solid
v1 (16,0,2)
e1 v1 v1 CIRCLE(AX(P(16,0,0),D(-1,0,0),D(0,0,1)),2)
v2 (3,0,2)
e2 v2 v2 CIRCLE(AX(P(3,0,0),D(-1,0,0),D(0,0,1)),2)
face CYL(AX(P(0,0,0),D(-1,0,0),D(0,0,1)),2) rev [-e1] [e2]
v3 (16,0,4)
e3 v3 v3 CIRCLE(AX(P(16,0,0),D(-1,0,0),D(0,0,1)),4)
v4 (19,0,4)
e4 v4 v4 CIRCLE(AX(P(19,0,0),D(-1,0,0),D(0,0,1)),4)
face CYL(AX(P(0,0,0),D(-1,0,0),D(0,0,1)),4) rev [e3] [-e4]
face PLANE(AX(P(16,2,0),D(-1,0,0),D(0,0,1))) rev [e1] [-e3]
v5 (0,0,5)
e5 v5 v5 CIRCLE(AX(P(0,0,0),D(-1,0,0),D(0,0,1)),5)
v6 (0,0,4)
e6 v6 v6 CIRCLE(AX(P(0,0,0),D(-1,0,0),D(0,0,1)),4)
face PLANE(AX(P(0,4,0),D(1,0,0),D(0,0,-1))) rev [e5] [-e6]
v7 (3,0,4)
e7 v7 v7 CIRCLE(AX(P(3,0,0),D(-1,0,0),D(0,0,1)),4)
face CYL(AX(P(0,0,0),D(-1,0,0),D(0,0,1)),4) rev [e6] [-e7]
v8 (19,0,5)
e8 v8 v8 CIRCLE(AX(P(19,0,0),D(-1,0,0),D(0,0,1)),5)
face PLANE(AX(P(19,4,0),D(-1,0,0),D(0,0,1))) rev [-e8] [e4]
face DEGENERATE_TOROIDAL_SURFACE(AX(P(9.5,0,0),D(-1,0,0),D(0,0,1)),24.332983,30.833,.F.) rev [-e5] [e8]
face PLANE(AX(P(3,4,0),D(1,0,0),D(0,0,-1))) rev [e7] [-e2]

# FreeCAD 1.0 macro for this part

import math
import FreeCAD as App
import Part
import Sketcher
Q = App.Units.Quantity

doc = App.newDocument("Part")
body = doc.addObject("PartDesign::Body", "Body")

sketch1 = doc.addObject("Sketcher::SketchObject", "Sketch")
body.addObject(sketch1)
sketch1.AttachmentSupport = (doc.XY_Plane, [""])
sketch1.MapMode = "FlatFace"
sketch1.addGeometry([
    Part.LineSegment(App.Vector(0, 5, 0), App.Vector(0, 4, 0)),
    Part.LineSegment(App.Vector(0, 4, 0), App.Vector(3, 4, 0)),
    Part.LineSegment(App.Vector(3, 4, 0), App.Vector(3, 2, 0)),
    Part.LineSegment(App.Vector(3, 2, 0), App.Vector(16, 2, 0)),
    Part.LineSegment(App.Vector(16, 2, 0), App.Vector(16, 4, 0)),
    Part.LineSegment(App.Vector(16, 4, 0), App.Vector(19, 4, 0)),
    Part.LineSegment(App.Vector(19, 4, 0), App.Vector(19, 5, 0)),
    Part.ArcOfCircle(Part.Circle(App.Vector(9.5, -24.3, 0), App.Vector(0, 0, 1), 30.8), math.radians(72), math.radians(108)),
], False)
sketch1.addConstraint([
    Sketcher.Constraint("Coincident", 0, 2, 1, 1),
    Sketcher.Constraint("Coincident", 1, 2, 2, 1),
    Sketcher.Constraint("Coincident", 2, 2, 3, 1),
    Sketcher.Constraint("Coincident", 3, 2, 4, 1),
    Sketcher.Constraint("Coincident", 4, 2, 5, 1),
    Sketcher.Constraint("Coincident", 5, 2, 6, 1),
    Sketcher.Constraint("Coincident", 6, 2, 7, 1),
    Sketcher.Constraint("Coincident", 7, 2, 0, 1),
    Sketcher.Constraint("Vertical", 0),
    Sketcher.Constraint("Horizontal", 1),
    Sketcher.Constraint("Vertical", 2),
    Sketcher.Constraint("Horizontal", 3),
    Sketcher.Constraint("Vertical", 4),
    Sketcher.Constraint("Horizontal", 5),
    Sketcher.Constraint("Vertical", 6),
    Sketcher.Constraint("PointOnObject", 0, 2, -2),
    Sketcher.Constraint("Horizontal", 1, 2, 4, 2),
    Sketcher.Constraint("Horizontal", 6, 2, 7, 2),
    Sketcher.Constraint("Equal", 1, 5),
    Sketcher.Constraint("DistanceX", 1, 1, 1, 2, Q("3 mm")),
    Sketcher.Constraint("DistanceX", 3, 1, 3, 2, Q("13 mm")),
    Sketcher.Constraint("DistanceY", 0, 2, 0, 1, Q("1 mm")),
    Sketcher.Constraint("DistanceY", 2, 2, 2, 1, Q("2 mm")),
    Sketcher.Constraint("DistanceY", -1, 1, 0, 2, Q("4 mm")),
    Sketcher.Constraint("Radius", 7, Q("30.833 mm")),
])
revolution = doc.addObject("PartDesign::Revolution", "Revolution")
body.addObject(revolution)
revolution.Profile = sketch1
revolution.ReferenceAxis = (sketch1, ["H_Axis"])
revolution.Angle = 360

doc.recompute()
